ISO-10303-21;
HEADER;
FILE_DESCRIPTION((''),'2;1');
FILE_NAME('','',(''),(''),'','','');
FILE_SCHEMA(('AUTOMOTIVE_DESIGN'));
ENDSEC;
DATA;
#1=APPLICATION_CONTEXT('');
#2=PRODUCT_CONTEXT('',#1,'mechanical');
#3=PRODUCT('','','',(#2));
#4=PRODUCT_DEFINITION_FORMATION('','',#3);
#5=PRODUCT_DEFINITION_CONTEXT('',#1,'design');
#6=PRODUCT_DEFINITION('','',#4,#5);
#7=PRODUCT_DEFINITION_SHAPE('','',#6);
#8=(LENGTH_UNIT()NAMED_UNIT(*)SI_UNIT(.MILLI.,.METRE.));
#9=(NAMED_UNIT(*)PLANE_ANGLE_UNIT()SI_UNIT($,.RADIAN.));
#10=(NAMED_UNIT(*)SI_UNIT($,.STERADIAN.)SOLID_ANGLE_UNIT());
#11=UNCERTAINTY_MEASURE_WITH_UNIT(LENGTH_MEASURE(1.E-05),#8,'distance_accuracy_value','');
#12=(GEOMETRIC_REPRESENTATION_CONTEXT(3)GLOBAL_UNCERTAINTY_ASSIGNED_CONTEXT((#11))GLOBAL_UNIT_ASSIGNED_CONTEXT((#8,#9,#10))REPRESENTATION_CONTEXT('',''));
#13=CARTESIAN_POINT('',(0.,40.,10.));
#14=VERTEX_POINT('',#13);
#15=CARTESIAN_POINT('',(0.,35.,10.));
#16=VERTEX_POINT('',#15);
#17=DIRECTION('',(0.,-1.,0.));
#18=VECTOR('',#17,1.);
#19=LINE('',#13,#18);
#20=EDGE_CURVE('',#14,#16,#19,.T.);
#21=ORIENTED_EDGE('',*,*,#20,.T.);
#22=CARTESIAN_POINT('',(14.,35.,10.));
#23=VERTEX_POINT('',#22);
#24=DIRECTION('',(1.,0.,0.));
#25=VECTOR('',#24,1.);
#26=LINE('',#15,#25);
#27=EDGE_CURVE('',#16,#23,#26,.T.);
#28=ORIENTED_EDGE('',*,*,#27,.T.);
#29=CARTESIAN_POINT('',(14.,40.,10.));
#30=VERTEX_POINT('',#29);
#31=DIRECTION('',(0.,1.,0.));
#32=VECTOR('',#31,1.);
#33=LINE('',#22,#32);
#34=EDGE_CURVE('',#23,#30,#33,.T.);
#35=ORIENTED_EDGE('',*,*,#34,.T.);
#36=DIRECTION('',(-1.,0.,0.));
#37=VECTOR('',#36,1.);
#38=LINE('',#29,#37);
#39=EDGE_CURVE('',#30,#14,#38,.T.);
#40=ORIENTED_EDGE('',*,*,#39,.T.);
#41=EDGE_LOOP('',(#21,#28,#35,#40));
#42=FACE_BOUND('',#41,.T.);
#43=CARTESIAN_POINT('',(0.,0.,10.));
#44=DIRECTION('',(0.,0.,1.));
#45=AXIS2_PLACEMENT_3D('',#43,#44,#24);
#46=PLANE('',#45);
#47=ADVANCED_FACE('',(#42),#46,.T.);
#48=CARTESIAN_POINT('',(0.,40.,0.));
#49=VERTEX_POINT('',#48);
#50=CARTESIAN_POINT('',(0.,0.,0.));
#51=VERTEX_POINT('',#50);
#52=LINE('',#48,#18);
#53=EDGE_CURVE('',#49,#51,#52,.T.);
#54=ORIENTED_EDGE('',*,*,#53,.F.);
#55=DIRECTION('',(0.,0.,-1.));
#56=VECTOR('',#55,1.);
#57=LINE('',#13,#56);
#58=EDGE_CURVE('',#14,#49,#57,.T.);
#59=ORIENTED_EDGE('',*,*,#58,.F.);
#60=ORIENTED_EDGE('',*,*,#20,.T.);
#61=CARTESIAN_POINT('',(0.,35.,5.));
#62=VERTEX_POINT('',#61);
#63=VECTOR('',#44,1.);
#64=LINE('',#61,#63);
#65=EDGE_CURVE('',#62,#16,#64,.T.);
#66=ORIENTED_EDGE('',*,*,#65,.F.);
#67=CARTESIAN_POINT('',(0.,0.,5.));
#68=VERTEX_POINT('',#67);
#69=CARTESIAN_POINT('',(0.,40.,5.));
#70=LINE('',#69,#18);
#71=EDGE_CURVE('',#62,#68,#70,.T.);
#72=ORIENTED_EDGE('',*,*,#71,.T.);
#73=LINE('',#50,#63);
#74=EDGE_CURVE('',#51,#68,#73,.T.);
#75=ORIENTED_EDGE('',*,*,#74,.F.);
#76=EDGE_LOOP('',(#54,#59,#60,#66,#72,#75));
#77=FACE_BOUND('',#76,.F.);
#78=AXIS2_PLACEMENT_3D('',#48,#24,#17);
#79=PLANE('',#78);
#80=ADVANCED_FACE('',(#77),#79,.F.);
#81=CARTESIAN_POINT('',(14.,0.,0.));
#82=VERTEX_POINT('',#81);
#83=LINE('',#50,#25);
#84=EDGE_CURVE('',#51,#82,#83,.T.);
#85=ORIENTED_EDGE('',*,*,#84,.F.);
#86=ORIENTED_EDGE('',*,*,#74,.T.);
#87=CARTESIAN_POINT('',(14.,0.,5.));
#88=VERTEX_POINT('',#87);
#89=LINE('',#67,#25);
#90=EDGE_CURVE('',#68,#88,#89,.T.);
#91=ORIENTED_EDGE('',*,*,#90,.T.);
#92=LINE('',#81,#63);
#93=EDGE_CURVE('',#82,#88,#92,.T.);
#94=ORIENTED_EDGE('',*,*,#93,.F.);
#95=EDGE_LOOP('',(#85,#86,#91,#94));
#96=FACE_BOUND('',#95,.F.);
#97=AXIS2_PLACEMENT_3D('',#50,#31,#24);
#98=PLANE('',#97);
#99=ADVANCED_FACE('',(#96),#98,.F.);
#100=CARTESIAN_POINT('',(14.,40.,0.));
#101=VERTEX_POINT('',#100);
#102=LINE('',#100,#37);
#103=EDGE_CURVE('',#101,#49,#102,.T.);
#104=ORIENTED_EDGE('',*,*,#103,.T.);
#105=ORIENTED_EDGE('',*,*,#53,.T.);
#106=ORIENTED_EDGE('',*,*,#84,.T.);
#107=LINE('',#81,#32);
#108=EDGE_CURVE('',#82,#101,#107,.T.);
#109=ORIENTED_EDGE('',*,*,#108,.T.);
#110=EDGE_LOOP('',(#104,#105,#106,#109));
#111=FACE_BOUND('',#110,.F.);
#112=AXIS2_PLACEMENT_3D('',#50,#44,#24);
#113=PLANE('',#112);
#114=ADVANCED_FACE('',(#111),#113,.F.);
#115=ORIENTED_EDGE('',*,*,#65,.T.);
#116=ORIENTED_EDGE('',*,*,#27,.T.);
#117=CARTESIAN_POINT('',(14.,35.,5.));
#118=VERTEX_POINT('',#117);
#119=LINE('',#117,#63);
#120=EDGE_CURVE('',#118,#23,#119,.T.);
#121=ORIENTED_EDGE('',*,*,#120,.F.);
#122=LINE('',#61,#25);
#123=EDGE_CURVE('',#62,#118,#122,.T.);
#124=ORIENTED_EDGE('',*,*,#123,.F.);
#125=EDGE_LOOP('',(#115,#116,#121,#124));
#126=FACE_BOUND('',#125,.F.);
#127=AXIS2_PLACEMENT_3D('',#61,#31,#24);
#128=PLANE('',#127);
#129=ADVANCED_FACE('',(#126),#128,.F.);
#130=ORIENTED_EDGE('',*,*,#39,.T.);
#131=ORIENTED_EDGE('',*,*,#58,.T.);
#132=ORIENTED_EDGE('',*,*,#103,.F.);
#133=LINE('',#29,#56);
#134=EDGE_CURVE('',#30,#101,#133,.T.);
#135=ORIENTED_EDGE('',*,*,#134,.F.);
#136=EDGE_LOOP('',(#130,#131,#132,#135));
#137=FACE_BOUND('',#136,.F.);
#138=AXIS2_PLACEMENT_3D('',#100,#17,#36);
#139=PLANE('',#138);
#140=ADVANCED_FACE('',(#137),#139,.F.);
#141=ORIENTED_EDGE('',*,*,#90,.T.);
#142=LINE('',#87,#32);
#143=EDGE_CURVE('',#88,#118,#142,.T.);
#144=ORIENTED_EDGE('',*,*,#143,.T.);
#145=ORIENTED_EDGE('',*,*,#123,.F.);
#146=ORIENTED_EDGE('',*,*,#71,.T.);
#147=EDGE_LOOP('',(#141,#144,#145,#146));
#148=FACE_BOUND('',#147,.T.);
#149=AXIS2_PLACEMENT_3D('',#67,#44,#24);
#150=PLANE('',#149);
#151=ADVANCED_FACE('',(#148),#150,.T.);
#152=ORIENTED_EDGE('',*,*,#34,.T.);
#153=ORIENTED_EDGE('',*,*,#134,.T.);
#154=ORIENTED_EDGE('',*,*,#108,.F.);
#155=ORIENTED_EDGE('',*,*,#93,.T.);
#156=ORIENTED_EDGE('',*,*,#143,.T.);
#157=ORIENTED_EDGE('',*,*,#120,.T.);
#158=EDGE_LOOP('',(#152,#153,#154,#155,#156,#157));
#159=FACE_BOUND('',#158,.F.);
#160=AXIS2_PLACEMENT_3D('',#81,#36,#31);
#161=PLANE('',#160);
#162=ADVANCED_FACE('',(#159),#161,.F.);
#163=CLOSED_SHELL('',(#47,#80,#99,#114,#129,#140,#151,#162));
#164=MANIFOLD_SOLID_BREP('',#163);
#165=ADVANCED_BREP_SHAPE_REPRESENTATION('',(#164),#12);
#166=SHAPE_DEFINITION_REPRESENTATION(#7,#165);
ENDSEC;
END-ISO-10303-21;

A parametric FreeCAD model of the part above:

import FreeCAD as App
import Part
import Sketcher
Q = App.Units.Quantity

doc = App.newDocument("Part")
params = doc.addObject("Spreadsheet::Sheet", "Params")
for row, (alias, value) in enumerate([
    ("sketch1_width", "14 mm"),
    ("sketch1_height", "40 mm"),
    ("pad1_length", "5 mm"),
    ("sketch2_width", "14 mm"),
    ("sketch2_height", "5 mm"),
    ("pad2_length", "5 mm"),
], start=1):
    params.set(f"A{row}", alias)
    params.set(f"B{row}", "=" + value)
    params.setAlias(f"B{row}", alias)

body = doc.addObject("PartDesign::Body", "Body")

# Sketch on XY plane
sketch1 = body.newObject("Sketcher::SketchObject", "Sketch")
sketch1.AttachmentSupport = (doc.getObject("XY_Plane"), [""])
sketch1.MapMode = "FlatFace"
sketch1.addGeometry(Part.LineSegment(App.Vector(0, 40, 0), App.Vector(0, 0, 0)), False)
sketch1.addGeometry(Part.LineSegment(App.Vector(0, 0, 0), App.Vector(14, 0, 0)), False)
sketch1.addGeometry(Part.LineSegment(App.Vector(14, 0, 0), App.Vector(14, 40, 0)), False)
sketch1.addGeometry(Part.LineSegment(App.Vector(14, 40, 0), App.Vector(0, 40, 0)), False)
sketch1.addConstraint(Sketcher.Constraint("Coincident", 0, 2, 1, 1))
sketch1.addConstraint(Sketcher.Constraint("Coincident", 1, 2, 2, 1))
sketch1.addConstraint(Sketcher.Constraint("Coincident", 2, 2, 3, 1))
sketch1.addConstraint(Sketcher.Constraint("Coincident", 3, 2, 0, 1))
sketch1.addConstraint(Sketcher.Constraint("Vertical", 0))
sketch1.addConstraint(Sketcher.Constraint("Horizontal", 1))
sketch1.addConstraint(Sketcher.Constraint("Vertical", 2))
sketch1.addConstraint(Sketcher.Constraint("Horizontal", 3))
sketch1.addConstraint(Sketcher.Constraint("Coincident", 0, 2, -1, 1))
sketch1.addConstraint(Sketcher.Constraint("DistanceX", 1, 1, 1, 2, Q("14 mm")))
sketch1.addConstraint(Sketcher.Constraint("DistanceY", 0, 2, 0, 1, Q("40 mm")))
sketch1.setExpression("Constraints[9]", "Params.sketch1_width")
sketch1.setExpression("Constraints[10]", "Params.sketch1_height")
pad1 = body.newObject("PartDesign::Pad", "Pad")
pad1.Profile = sketch1
pad1.setExpression("Length", "Params.pad1_length")

# Sketch on XY plane
sketch2 = body.newObject("Sketcher::SketchObject", "Sketch001")
sketch2.AttachmentSupport = (doc.getObject("XY_Plane"), [""])
sketch2.MapMode = "FlatFace"
sketch2.AttachmentOffset = App.Placement(App.Vector(0, 0, 5), App.Rotation())
sketch2.addGeometry(Part.LineSegment(App.Vector(14, 35, 0), App.Vector(14, 40, 0)), False)
sketch2.addGeometry(Part.LineSegment(App.Vector(14, 40, 0), App.Vector(0, 40, 0)), False)
sketch2.addGeometry(Part.LineSegment(App.Vector(0, 40, 0), App.Vector(0, 35, 0)), False)
sketch2.addGeometry(Part.LineSegment(App.Vector(0, 35, 0), App.Vector(14, 35, 0)), False)
sketch2.addConstraint(Sketcher.Constraint("Coincident", 0, 2, 1, 1))
sketch2.addConstraint(Sketcher.Constraint("Coincident", 1, 2, 2, 1))
sketch2.addConstraint(Sketcher.Constraint("Coincident", 2, 2, 3, 1))
sketch2.addConstraint(Sketcher.Constraint("Coincident", 3, 2, 0, 1))
sketch2.addConstraint(Sketcher.Constraint("Vertical", 0))
sketch2.addConstraint(Sketcher.Constraint("Horizontal", 1))
sketch2.addConstraint(Sketcher.Constraint("Vertical", 2))
sketch2.addConstraint(Sketcher.Constraint("Horizontal", 3))
sketch2.addConstraint(Sketcher.Constraint("PointOnObject", 1, 2, -2))
sketch2.addConstraint(Sketcher.Constraint("DistanceX", 1, 2, 1, 1, Q("14 mm")))
sketch2.addConstraint(Sketcher.Constraint("DistanceY", 0, 1, 0, 2, Q("5 mm")))
sketch2.addConstraint(Sketcher.Constraint("DistanceY", -1, 1, 0, 2, Q("40 mm")))
sketch2.setExpression("Constraints[9]", "Params.sketch2_width")
sketch2.setExpression("Constraints[10]", "Params.sketch2_height")
pad2 = body.newObject("PartDesign::Pad", "Pad001")
pad2.Profile = sketch2
pad2.setExpression("Length", "Params.pad2_length")

doc.recompute()
